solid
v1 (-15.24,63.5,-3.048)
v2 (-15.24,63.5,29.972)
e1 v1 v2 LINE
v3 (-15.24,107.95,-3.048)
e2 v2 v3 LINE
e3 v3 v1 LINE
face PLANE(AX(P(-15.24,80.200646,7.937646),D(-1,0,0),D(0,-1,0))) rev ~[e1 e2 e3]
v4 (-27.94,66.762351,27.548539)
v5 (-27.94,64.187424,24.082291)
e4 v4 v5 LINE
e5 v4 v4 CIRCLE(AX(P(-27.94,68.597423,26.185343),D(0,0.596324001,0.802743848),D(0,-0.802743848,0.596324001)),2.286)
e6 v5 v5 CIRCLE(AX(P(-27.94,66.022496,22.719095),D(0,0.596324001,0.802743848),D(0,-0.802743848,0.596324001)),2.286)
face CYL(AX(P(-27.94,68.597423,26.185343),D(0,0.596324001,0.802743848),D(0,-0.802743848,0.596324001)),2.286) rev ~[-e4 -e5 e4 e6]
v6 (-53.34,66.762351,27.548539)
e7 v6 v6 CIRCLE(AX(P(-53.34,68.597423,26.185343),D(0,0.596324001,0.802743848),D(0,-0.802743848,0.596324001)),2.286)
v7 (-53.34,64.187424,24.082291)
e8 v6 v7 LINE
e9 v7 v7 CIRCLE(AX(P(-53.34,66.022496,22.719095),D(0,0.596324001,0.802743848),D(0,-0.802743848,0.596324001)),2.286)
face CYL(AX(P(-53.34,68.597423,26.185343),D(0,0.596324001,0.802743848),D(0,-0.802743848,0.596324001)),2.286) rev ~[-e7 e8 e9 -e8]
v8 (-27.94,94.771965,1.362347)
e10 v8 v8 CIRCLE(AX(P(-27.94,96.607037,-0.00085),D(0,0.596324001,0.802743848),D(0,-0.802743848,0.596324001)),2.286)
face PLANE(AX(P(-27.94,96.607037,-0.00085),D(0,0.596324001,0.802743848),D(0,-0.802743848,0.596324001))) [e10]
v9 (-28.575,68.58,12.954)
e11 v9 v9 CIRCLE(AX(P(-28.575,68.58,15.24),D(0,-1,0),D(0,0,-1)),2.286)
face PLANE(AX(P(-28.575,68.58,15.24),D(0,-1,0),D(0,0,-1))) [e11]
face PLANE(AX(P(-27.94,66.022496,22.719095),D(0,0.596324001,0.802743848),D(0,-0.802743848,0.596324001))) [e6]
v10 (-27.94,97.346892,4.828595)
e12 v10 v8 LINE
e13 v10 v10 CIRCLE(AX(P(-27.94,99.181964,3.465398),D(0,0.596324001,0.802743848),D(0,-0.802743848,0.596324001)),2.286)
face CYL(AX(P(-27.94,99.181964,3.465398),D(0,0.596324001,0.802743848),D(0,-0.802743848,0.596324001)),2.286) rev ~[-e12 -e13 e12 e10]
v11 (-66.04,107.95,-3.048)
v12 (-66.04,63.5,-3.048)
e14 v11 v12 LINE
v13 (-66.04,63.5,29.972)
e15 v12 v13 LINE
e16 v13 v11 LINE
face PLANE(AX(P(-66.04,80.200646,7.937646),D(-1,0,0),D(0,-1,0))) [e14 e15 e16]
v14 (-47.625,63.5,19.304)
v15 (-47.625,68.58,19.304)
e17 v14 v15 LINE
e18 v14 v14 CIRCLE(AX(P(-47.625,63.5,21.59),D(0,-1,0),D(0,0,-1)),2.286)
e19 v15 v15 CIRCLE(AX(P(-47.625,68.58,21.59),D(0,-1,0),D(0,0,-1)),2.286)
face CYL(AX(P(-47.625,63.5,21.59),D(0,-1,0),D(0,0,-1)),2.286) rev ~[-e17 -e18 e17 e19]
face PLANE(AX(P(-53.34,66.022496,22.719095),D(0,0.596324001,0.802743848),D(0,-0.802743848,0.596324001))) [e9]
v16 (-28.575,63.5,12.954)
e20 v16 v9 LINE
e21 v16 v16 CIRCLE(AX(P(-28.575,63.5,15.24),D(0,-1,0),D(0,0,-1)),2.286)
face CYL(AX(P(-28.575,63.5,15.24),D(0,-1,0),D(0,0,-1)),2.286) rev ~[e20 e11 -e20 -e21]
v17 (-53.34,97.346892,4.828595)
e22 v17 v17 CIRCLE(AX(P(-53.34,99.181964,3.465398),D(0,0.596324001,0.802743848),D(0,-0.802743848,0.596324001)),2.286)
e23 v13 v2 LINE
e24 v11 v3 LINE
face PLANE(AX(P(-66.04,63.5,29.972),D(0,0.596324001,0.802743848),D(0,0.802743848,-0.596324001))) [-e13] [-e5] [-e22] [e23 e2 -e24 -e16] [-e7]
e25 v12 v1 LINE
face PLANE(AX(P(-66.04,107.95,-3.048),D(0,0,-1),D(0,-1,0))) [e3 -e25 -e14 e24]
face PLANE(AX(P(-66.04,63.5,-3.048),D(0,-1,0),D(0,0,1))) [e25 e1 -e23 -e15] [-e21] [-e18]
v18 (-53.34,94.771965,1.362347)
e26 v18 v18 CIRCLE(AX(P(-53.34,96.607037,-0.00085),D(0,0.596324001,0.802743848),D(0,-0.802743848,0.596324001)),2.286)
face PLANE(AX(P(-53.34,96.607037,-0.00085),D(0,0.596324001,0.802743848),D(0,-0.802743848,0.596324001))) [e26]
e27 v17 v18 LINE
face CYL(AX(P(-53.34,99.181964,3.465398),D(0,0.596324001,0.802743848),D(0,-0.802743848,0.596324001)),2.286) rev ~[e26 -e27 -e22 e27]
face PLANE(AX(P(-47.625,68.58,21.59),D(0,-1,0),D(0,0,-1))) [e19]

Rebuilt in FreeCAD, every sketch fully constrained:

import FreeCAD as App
import Part
import Sketcher
Q = App.Units.Quantity

doc = App.newDocument("Part")
body = doc.addObject("PartDesign::Body", "Body")

# Sketch on YZ plane
sketch1 = doc.addObject("Sketcher::SketchObject", "Sketch")
body.addObject(sketch1)
sketch1.AttachmentSupport = (doc.YZ_Plane, [""])
sketch1.MapMode = "FlatFace"
sketch1.addGeometry(Part.LineSegment(App.Vector(0, 33, 0), App.Vector(0, 0, 0)), False)
sketch1.addGeometry(Part.LineSegment(App.Vector(0, 0, 0), App.Vector(44, 0, 0)), False)
sketch1.addGeometry(Part.LineSegment(App.Vector(44, 0, 0), App.Vector(0, 33, 0)), False)
sketch1.addConstraint(Sketcher.Constraint("Coincident", 0, 2, 1, 1))
sketch1.addConstraint(Sketcher.Constraint("Coincident", 1, 2, 2, 1))
sketch1.addConstraint(Sketcher.Constraint("Coincident", 2, 2, 0, 1))
sketch1.addConstraint(Sketcher.Constraint("Vertical", 0))
sketch1.addConstraint(Sketcher.Constraint("Horizontal", 1))
sketch1.addConstraint(Sketcher.Constraint("Coincident", 0, 2, -1, 1))
sketch1.addConstraint(Sketcher.Constraint("DistanceY", 0, 2, 0, 1, Q("1.3 in")))
sketch1.addConstraint(Sketcher.Constraint("DistanceX", 1, 1, 1, 2, Q("1.75 in")))
pad1 = doc.addObject("PartDesign::Pad", "Pad")
body.addObject(pad1)
pad1.Profile = sketch1
pad1.Length = Q("2 in")

# Sketch on XZ plane
sketch2 = doc.addObject("Sketcher::SketchObject", "Sketch001")
body.addObject(sketch2)
sketch2.AttachmentSupport = (doc.XZ_Plane, [""])
sketch2.MapMode = "FlatFace"
sketch2.addGeometry(Part.Circle(App.Vector(18.4, 24.6, 0), App.Vector(0, 0, 1), 2.3), False)
sketch2.addGeometry(Part.Circle(App.Vector(37.5, 18.3, 0), App.Vector(0, 0, 1), 2.3), False)
sketch2.addConstraint(Sketcher.Constraint("Equal", 0, 1))
sketch2.addConstraint(Sketcher.Constraint("Diameter", 0, Q("0.18 in")))
sketch2.addConstraint(Sketcher.Constraint("DistanceY", -1, 1, 0, 3, Q("0.97 in")))
sketch2.addConstraint(Sketcher.Constraint("DistanceY", -1, 1, 1, 3, Q("0.72 in")))
sketch2.addConstraint(Sketcher.Constraint("DistanceX", 0, 3, 1, 3, Q("0.75 in")))
sketch2.addConstraint(Sketcher.Constraint("DistanceX", -1, 1, 0, 3, Q("0.725 in")))
pocket1 = doc.addObject("PartDesign::Pocket", "Pocket")
body.addObject(pocket1)
pocket1.Profile = sketch2
pocket1.Length = Q("0.2 in")

# Sketch on an angled plane
sketch3 = doc.addObject("Sketcher::SketchObject", "Sketch002")
body.addObject(sketch3)
sketch3.Placement = App.Placement(App.Vector(0, 15.806523, 21.278012), App.Rotation(App.Vector(0, -0.802743848, 0.596324001), App.Vector(1, 0, 0), App.Vector(0, 0.596324001, 0.802743848), "ZXY"))
sketch3.addGeometry(Part.Circle(App.Vector(-24.8, 38.1, 0), App.Vector(0, 0, 1), 2.3), False)
sketch3.addGeometry(Part.Circle(App.Vector(13.3, 38.1, 0), App.Vector(0, 0, 1), 2.3), False)
sketch3.addGeometry(Part.Circle(App.Vector(13.3, 12.7, 0), App.Vector(0, 0, 1), 2.3), False)
sketch3.addGeometry(Part.Circle(App.Vector(-24.8, 12.7, 0), App.Vector(0, 0, 1), 2.3), False)
sketch3.addConstraint(Sketcher.Constraint("Equal", 0, 1))
sketch3.addConstraint(Sketcher.Constraint("Equal", 1, 2))
sketch3.addConstraint(Sketcher.Constraint("Equal", 2, 3))
sketch3.addConstraint(Sketcher.Constraint("Horizontal", 0, 3, 1, 3))
sketch3.addConstraint(Sketcher.Constraint("Horizontal", 2, 3, 3, 3))
sketch3.addConstraint(Sketcher.Constraint("Vertical", 1, 3, 2, 3))
sketch3.addConstraint(Sketcher.Constraint("Vertical", 0, 3, 3, 3))
sketch3.addConstraint(Sketcher.Constraint("Diameter", 0, Q("0.18 in")))
sketch3.addConstraint(Sketcher.Constraint("DistanceY", 2, 3, 1, 3, Q("1 in")))
sketch3.addConstraint(Sketcher.Constraint("DistanceY", -1, 1, 0, 3, Q("1.5 in")))
sketch3.addConstraint(Sketcher.Constraint("DistanceX", 0, 3, 1, 3, Q("1.5 in")))
sketch3.addConstraint(Sketcher.Constraint("DistanceX", 0, 3, -1, 1, 24.759381))
pocket2 = doc.addObject("PartDesign::Pocket", "Pocket001")
body.addObject(pocket2)
pocket2.Profile = sketch3
pocket2.Length = Q("0.17 in")
body2 = doc.addObject("PartDesign::Body", "Body001")
doc.recompute()

body.Placement = App.Placement(App.Vector(-66.04, 63.5, -3.048), App.Rotation(App.Vector(0, 0, 1), 0))
boolean = doc.addObject("PartDesign::Boolean", "Boolean")
body2.addObject(boolean)
boolean.Type = "Fuse"
boolean.addObjects([body])

doc.recompute()
